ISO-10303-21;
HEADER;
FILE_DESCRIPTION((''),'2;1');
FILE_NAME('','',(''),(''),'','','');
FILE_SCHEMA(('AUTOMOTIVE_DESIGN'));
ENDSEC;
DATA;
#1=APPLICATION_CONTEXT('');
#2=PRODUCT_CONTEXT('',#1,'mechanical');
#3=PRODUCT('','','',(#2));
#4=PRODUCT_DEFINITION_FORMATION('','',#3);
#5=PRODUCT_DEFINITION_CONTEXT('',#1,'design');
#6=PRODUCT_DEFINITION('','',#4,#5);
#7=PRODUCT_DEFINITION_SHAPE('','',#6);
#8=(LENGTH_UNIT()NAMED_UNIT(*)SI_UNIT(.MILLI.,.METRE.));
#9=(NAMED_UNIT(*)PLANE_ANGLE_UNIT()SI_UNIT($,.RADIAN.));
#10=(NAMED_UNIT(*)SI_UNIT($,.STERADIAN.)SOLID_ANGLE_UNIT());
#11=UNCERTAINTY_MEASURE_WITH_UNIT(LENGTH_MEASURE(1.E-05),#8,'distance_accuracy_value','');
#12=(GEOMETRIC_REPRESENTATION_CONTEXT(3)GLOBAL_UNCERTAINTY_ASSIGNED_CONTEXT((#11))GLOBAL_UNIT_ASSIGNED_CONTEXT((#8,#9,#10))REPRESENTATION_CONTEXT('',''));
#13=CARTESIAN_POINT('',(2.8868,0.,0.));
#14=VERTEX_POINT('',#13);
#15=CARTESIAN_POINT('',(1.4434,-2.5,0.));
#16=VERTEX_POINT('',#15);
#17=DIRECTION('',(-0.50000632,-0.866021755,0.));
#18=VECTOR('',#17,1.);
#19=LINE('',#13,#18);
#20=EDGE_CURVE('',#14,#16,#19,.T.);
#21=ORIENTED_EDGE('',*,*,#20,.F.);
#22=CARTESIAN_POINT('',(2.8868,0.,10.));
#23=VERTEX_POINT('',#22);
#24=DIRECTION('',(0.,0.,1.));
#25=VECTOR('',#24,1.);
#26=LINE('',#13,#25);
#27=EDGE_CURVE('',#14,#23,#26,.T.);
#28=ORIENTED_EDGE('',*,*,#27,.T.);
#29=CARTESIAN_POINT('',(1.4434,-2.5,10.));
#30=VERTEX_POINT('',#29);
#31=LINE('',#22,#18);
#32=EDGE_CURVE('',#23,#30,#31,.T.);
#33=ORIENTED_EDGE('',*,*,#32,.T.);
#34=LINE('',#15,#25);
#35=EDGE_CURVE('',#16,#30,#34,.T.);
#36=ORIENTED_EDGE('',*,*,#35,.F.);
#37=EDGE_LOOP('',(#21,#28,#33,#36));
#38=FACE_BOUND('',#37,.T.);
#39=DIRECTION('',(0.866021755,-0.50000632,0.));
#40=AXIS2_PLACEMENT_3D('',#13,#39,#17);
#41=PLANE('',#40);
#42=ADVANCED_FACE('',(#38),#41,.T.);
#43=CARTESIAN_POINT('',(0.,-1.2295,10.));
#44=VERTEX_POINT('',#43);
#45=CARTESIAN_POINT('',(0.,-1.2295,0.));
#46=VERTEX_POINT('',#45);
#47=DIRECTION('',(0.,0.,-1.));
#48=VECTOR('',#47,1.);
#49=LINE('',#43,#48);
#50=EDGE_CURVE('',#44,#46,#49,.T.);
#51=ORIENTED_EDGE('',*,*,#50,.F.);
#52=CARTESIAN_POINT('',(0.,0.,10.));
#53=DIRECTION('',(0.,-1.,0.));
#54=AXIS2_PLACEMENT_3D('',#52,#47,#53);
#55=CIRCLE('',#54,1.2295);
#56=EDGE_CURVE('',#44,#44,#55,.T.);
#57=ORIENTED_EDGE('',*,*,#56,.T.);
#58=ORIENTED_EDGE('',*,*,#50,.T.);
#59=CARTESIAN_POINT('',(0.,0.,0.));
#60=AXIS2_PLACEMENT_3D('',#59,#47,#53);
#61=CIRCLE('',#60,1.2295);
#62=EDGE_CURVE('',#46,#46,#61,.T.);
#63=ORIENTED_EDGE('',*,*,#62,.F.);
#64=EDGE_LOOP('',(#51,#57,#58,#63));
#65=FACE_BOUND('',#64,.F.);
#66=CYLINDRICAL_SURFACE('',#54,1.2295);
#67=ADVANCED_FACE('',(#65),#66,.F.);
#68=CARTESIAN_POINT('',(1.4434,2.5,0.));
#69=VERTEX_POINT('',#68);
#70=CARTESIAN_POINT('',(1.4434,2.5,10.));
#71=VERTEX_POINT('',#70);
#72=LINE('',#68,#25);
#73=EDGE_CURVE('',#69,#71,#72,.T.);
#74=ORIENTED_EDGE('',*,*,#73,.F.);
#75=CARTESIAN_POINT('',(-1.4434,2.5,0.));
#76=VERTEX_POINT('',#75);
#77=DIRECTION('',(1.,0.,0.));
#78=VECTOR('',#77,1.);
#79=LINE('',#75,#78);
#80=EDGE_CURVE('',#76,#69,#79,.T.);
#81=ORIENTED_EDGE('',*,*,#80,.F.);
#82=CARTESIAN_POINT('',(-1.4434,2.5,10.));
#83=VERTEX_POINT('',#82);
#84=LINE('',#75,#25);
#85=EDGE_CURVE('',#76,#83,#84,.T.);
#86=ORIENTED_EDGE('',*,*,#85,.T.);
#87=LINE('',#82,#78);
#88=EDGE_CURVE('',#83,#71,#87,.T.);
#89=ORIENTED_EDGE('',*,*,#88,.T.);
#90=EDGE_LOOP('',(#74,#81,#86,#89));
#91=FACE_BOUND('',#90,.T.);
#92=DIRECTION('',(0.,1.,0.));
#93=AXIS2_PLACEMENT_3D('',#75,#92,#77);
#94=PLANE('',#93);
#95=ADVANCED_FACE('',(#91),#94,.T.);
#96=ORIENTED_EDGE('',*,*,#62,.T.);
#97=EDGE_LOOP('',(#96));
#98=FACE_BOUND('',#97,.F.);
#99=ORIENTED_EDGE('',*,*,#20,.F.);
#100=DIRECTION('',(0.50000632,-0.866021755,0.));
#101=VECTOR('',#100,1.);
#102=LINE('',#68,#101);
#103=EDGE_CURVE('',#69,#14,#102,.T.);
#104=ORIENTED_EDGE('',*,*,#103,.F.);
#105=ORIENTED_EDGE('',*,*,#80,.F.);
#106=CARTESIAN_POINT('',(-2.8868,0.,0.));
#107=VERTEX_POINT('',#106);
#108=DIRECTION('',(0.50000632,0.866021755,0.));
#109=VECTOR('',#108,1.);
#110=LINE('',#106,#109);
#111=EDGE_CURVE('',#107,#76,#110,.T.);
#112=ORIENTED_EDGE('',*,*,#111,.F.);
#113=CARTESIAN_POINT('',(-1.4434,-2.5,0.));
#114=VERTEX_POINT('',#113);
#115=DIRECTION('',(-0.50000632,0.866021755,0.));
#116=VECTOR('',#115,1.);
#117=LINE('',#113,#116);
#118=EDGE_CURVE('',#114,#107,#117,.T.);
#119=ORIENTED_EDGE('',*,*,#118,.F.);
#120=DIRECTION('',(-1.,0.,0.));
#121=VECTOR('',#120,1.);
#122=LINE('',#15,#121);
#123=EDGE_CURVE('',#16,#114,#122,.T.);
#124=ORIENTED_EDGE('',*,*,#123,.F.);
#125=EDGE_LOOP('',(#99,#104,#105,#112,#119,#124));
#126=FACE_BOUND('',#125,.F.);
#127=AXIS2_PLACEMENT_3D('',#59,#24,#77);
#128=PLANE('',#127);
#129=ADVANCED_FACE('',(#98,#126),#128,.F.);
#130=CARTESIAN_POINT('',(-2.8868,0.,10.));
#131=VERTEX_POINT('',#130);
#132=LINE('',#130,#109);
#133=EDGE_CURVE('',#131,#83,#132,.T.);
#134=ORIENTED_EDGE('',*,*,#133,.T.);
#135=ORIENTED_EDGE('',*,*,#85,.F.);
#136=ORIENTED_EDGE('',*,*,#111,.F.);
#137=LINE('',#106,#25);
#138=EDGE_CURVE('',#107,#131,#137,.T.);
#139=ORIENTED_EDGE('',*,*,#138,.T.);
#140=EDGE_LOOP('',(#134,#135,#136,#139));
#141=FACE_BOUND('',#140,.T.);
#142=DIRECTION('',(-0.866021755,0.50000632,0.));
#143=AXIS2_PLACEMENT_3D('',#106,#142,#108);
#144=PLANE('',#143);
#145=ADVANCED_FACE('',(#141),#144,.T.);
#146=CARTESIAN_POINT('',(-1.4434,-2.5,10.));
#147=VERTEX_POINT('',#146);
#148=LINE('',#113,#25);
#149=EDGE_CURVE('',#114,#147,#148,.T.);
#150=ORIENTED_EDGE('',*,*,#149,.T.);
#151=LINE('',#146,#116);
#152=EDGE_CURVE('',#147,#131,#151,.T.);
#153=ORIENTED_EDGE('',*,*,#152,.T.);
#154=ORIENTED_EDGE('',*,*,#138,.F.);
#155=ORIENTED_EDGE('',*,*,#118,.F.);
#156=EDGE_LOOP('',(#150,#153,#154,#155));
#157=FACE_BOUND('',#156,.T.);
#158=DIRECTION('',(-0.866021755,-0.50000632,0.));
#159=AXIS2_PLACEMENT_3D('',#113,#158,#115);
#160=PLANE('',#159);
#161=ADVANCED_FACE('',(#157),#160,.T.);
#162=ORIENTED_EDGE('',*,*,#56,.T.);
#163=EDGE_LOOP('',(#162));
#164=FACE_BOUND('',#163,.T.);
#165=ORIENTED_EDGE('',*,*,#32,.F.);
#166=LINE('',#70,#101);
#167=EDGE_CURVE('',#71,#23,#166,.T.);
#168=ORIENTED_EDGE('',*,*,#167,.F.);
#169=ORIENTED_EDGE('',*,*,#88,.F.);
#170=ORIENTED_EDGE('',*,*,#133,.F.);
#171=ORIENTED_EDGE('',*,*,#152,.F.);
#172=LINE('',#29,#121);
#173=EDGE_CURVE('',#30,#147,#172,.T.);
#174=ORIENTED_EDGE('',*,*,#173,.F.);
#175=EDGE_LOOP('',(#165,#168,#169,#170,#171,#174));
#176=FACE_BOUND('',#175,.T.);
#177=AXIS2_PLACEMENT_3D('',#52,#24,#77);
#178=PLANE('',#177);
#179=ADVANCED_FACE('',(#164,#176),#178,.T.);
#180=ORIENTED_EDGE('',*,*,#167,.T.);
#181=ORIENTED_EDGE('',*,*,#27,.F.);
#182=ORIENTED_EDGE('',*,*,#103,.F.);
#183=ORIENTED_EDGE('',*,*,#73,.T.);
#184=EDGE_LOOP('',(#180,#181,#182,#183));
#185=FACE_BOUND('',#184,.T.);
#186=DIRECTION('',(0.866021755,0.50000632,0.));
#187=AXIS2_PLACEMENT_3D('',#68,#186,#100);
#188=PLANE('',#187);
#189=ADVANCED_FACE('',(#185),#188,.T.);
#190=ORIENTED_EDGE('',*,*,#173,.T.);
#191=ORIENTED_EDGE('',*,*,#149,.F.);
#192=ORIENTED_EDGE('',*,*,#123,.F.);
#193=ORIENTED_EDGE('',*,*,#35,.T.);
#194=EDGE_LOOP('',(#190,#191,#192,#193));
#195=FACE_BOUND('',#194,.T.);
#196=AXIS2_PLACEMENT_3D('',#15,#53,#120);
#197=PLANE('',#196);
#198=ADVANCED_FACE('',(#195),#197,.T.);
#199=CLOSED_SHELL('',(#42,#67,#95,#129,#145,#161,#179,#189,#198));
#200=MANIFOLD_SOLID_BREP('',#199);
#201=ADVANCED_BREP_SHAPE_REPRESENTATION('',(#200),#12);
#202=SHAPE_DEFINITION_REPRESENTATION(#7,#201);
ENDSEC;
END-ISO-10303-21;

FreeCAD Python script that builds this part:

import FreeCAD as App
import Part
import Sketcher

V = App.Vector
Q = App.Units.Quantity

doc = App.newDocument("Part")
body = doc.addObject("PartDesign::Body", "Body")

# Sketch on XY plane
sketch1 = body.newObject("Sketcher::SketchObject", "Sketch")
sketch1.AttachmentSupport = (doc.getObject("XY_Plane"), [""])
sketch1.MapMode = "FlatFace"
sketch1.addGeometry(Part.LineSegment(V(1.4, -2.5, 0), V(2.9, 0, 0)), False)
sketch1.addGeometry(Part.LineSegment(V(2.9, 0, 0), V(1.4, 2.5, 0)), False)
sketch1.addGeometry(Part.LineSegment(V(1.4, 2.5, 0), V(-1.4, 2.5, 0)), False)
sketch1.addGeometry(Part.LineSegment(V(-1.4, 2.5, 0), V(-2.9, 0, 0)), False)
sketch1.addGeometry(Part.LineSegment(V(-2.9, 0, 0), V(-1.4, -2.5, 0)), False)
sketch1.addGeometry(Part.LineSegment(V(-1.4, -2.5, 0), V(1.4, -2.5, 0)), False)
sketch1.addConstraint(Sketcher.Constraint("Coincident", 0, 2, 1, 1))
sketch1.addConstraint(Sketcher.Constraint("Coincident", 1, 2, 2, 1))
sketch1.addConstraint(Sketcher.Constraint("Coincident", 2, 2, 3, 1))
sketch1.addConstraint(Sketcher.Constraint("Coincident", 3, 2, 4, 1))
sketch1.addConstraint(Sketcher.Constraint("Coincident", 4, 2, 5, 1))
sketch1.addConstraint(Sketcher.Constraint("Coincident", 5, 2, 0, 1))
sketch1.addConstraint(Sketcher.Constraint("Horizontal", 2))
sketch1.addConstraint(Sketcher.Constraint("Horizontal", 5))
sketch1.addConstraint(Sketcher.Constraint("Symmetric", 0, 2, 3, 2, -1, 1))
sketch1.addConstraint(Sketcher.Constraint("Symmetric", 1, 2, 4, 2, -1, 1))
sketch1.addConstraint(Sketcher.Constraint("PointOnObject", 0, 2, -1))
sketch1.addConstraint(Sketcher.Constraint("Parallel", 0, 3))
sketch1.addConstraint(Sketcher.Constraint("Vertical", 2, 2, 4, 2))
sketch1.addConstraint(Sketcher.Constraint("DistanceY", 4, 2, 2, 2, 5.0))
sketch1.addConstraint(Sketcher.Constraint("Angle", 0, Q("59.9996 deg")))
sketch1.addConstraint(Sketcher.Constraint("DistanceX", 2, 2, 2, 1, 2.8868))
pad1 = body.newObject("PartDesign::Pad", "Pad")
pad1.Profile = sketch1
pad1.Length = 10

# Sketch on XY plane
sketch2 = body.newObject("Sketcher::SketchObject", "Sketch001")
sketch2.AttachmentSupport = (doc.getObject("XY_Plane"), [""])
sketch2.MapMode = "FlatFace"
sketch2.AttachmentOffset = App.Placement(V(0, 0, 10), App.Rotation())
sketch2.addGeometry(Part.Circle(V(0, 0, 0), V(0, 0, 1), 1.2), False)
sketch2.addConstraint(Sketcher.Constraint("Coincident", 0, 3, -1, 1))
sketch2.addConstraint(Sketcher.Constraint("Diameter", 0, 2.459))
doc.recompute()
hole = body.newObject("PartDesign::Hole", "Hole")
hole.Profile = sketch2
hole.ThreadType = "None"
hole.Diameter = 2.459
hole.DepthType = "ThroughAll"

doc.recompute()
